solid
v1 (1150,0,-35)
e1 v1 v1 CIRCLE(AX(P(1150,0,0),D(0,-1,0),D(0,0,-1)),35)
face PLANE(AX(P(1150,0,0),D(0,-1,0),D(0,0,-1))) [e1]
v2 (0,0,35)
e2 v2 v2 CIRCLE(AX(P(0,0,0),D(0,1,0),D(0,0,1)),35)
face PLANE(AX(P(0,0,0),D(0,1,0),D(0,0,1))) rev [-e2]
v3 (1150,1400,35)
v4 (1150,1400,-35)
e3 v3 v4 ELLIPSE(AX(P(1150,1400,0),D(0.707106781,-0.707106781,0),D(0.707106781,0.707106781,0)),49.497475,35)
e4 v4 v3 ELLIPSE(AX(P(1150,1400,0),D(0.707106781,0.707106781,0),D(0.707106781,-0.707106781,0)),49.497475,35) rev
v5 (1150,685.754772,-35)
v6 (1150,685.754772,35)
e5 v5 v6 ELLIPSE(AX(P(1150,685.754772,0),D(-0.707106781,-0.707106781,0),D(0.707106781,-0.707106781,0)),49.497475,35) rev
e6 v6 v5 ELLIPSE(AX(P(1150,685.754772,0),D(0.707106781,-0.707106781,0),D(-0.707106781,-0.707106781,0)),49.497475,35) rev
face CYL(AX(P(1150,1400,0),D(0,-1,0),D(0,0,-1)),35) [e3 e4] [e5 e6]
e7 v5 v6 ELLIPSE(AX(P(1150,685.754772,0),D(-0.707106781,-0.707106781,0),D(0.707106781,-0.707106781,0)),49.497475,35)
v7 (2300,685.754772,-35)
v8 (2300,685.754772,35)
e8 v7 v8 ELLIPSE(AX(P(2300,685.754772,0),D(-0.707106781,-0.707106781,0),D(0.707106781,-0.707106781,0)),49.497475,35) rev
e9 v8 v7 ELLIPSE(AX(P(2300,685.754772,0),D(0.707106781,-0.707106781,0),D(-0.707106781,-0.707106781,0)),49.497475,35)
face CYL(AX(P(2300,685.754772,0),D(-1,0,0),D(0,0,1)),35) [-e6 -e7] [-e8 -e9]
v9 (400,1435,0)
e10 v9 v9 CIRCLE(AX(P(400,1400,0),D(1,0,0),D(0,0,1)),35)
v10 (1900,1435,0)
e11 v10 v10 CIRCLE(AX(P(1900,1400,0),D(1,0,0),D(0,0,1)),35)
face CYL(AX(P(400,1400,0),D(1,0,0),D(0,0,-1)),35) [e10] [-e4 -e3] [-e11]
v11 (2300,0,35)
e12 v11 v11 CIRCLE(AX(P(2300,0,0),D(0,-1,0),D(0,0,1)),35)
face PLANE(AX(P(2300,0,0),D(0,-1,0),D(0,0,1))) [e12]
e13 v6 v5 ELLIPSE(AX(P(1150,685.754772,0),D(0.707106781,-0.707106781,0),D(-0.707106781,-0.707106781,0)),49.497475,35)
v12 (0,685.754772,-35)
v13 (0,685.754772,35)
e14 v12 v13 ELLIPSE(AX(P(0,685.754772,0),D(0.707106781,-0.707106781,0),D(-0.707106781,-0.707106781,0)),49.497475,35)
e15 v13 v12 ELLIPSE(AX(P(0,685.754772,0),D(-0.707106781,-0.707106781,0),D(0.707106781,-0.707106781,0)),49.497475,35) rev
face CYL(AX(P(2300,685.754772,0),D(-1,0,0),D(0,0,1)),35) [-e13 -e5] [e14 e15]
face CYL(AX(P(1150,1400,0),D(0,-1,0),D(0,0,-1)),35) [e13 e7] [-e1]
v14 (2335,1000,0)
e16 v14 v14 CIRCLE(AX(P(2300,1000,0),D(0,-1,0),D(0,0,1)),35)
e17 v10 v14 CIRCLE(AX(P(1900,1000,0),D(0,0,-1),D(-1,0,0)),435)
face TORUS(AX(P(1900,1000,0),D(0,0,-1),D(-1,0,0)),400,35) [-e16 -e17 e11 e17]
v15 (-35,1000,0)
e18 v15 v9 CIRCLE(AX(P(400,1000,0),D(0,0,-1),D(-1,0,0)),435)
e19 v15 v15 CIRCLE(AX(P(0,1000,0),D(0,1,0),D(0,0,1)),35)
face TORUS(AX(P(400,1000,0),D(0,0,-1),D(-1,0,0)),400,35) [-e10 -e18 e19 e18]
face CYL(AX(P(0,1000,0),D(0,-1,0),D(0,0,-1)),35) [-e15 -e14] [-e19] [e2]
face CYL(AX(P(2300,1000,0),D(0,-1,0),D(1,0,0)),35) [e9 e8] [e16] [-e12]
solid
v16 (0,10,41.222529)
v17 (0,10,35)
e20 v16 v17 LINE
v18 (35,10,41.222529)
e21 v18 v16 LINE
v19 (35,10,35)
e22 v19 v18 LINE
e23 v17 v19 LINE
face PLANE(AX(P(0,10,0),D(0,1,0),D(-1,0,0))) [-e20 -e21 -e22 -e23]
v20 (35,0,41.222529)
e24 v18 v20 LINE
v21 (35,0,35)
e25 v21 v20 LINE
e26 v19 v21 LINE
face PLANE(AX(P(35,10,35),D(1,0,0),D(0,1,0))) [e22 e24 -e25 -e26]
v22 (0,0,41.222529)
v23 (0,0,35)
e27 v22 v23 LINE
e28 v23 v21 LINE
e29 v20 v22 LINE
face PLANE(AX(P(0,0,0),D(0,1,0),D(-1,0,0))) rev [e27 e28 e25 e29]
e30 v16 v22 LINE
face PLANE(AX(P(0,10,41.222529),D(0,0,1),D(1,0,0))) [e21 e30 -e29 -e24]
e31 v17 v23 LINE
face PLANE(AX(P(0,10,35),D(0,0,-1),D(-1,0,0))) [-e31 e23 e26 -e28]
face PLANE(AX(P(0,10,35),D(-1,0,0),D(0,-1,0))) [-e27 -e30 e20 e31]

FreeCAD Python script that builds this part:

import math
import FreeCAD as App
import Part
import Sketcher

V = App.Vector


def add_polygon(sketch, points):
    """Adds a closed chain of lines whose ends are joined by coincident constraints."""
    first, n = sketch.GeometryCount, len(points)
    for a, b in zip(points, points[1:] + points[:1]):
        sketch.addGeometry(Part.LineSegment(App.Vector(*a, 0), App.Vector(*b, 0)), False)
    for i in range(n):
        sketch.addConstraint(Sketcher.Constraint("Coincident", first + i, 2, first + (i + 1) % n, 1))

doc = App.newDocument("Part")
body = doc.addObject("PartDesign::Body", "Body")

# Sketch on XZ plane
sketch1 = body.newObject("Sketcher::SketchObject", "Sketch")
sketch1.AttachmentSupport = (doc.getObject("XZ_Plane"), [""])
sketch1.MapMode = "FlatFace"
sketch1.addGeometry(Part.Circle(V(0, 0, 0), V(0, 0, 1), 35), False)
sketch1.addConstraint([
    Sketcher.Constraint("Coincident", 0, 3, -1, 1),
    Sketcher.Constraint("Diameter", 0, 70.0),
])

# Sketch on XY plane
sketch2 = body.newObject("Sketcher::SketchObject", "Sketch001")
sketch2.AttachmentSupport = (doc.getObject("XY_Plane"), [""])
sketch2.MapMode = "FlatFace"
sketch2.addGeometry([
    Part.LineSegment(V(0, 0, 0), V(0, 1000, 0)),  # 0
    Part.ArcOfCircle(Part.Circle(V(400, 1000, 0), V(0, 0, 1), 400), math.radians(90), math.radians(180)),  # 1
    Part.LineSegment(V(400, 1400, 0), V(1900, 1400, 0)),  # 2
    Part.ArcOfCircle(Part.Circle(V(1900, 1000, 0), V(0, 0, 1), 400), math.radians(0), math.radians(90)),  # 3
    Part.LineSegment(V(2300, 1000, 0), V(2300, 0, 0)),  # 4
], False)
sketch2.addConstraint([
    Sketcher.Constraint("Tangent", 0, 2, 1, 2),
    Sketcher.Constraint("Tangent", 1, 1, 2, 1),
    Sketcher.Constraint("Tangent", 2, 2, 3, 2),
    Sketcher.Constraint("Tangent", 3, 1, 4, 1),
    Sketcher.Constraint("Vertical", 0),
    Sketcher.Constraint("Horizontal", 2),
    Sketcher.Constraint("Vertical", 4),
    Sketcher.Constraint("Coincident", 0, 1, -1, 1),
    Sketcher.Constraint("Equal", 1, 3),
    Sketcher.Constraint("PointOnObject", 4, 2, -1),
    Sketcher.Constraint("Radius", 1, 400.0),
    Sketcher.Constraint("DistanceX", 2, 1, 2, 2, 1500.0),
    Sketcher.Constraint("DistanceY", 0, 1, 0, 2, 1000.0),
])
doc.recompute()

additivepipe = body.newObject("PartDesign::AdditivePipe", "AdditivePipe")
additivepipe.Profile = sketch1
additivepipe.Spine = (sketch2, ["Edge1", "Edge2", "Edge3", "Edge4", "Edge5"])

# Sketch on XZ plane
sketch3 = body.newObject("Sketcher::SketchObject", "Sketch002")
sketch3.AttachmentSupport = (doc.getObject("XZ_Plane"), [""])
sketch3.MapMode = "FlatFace"
sketch3.addGeometry(Part.Circle(V(1150, 0, 0), V(0, 0, 1), 35), False)
sketch3.addConstraint([
    Sketcher.Constraint("PointOnObject", 0, 3, -1),
    Sketcher.Constraint("Diameter", 0, 70.0),
    Sketcher.Constraint("DistanceX", -1, 1, 0, 3, 1150.0),
])
pad1 = body.newObject("PartDesign::Pad", "Pad")
pad1.Profile = sketch3
pad1.Length = 1400
pad1.Reversed = True

# Sketch on YZ plane
sketch4 = body.newObject("Sketcher::SketchObject", "Sketch003")
sketch4.AttachmentSupport = (doc.getObject("YZ_Plane"), [""])
sketch4.MapMode = "FlatFace"
sketch4.addGeometry(Part.Circle(V(686, 0, 0), V(0, 0, 1), 35), False)
sketch4.addConstraint([
    Sketcher.Constraint("PointOnObject", 0, 3, -1),
    Sketcher.Constraint("Diameter", 0, 70.0),
    Sketcher.Constraint("DistanceX", -1, 1, 0, 3, 685.754772),
])
pad2 = body.newObject("PartDesign::Pad", "Pad001")
pad2.Profile = sketch4
pad2.Length = 2300
body2 = doc.addObject("PartDesign::Body", "Body001")

# Sketch on XZ plane
sketch5 = body2.newObject("Sketcher::SketchObject", "Sketch004")
sketch5.AttachmentSupport = (doc.getObject("XZ_Plane001"), [""])
sketch5.MapMode = "FlatFace"
add_polygon(sketch5, [(0, 41), (0, 35), (35, 35), (35, 41)])  # lines 0-3
sketch5.addConstraint([
    Sketcher.Constraint("Vertical", 0),
    Sketcher.Constraint("Horizontal", 1),
    Sketcher.Constraint("Vertical", 2),
    Sketcher.Constraint("Horizontal", 3),
    Sketcher.Constraint("PointOnObject", 0, 2, -2),
    Sketcher.Constraint("DistanceX", 1, 1, 1, 2, 35.0),
    Sketcher.Constraint("DistanceY", -1, 1, 0, 2, 35.0),
    Sketcher.Constraint("DistanceY", 0, 2, 0, 1, 6.222529),
])
pad3 = body2.newObject("PartDesign::Pad", "Pad002")
pad3.Profile = sketch5
pad3.Length = 10
pad3.Reversed = True

doc.recompute()
